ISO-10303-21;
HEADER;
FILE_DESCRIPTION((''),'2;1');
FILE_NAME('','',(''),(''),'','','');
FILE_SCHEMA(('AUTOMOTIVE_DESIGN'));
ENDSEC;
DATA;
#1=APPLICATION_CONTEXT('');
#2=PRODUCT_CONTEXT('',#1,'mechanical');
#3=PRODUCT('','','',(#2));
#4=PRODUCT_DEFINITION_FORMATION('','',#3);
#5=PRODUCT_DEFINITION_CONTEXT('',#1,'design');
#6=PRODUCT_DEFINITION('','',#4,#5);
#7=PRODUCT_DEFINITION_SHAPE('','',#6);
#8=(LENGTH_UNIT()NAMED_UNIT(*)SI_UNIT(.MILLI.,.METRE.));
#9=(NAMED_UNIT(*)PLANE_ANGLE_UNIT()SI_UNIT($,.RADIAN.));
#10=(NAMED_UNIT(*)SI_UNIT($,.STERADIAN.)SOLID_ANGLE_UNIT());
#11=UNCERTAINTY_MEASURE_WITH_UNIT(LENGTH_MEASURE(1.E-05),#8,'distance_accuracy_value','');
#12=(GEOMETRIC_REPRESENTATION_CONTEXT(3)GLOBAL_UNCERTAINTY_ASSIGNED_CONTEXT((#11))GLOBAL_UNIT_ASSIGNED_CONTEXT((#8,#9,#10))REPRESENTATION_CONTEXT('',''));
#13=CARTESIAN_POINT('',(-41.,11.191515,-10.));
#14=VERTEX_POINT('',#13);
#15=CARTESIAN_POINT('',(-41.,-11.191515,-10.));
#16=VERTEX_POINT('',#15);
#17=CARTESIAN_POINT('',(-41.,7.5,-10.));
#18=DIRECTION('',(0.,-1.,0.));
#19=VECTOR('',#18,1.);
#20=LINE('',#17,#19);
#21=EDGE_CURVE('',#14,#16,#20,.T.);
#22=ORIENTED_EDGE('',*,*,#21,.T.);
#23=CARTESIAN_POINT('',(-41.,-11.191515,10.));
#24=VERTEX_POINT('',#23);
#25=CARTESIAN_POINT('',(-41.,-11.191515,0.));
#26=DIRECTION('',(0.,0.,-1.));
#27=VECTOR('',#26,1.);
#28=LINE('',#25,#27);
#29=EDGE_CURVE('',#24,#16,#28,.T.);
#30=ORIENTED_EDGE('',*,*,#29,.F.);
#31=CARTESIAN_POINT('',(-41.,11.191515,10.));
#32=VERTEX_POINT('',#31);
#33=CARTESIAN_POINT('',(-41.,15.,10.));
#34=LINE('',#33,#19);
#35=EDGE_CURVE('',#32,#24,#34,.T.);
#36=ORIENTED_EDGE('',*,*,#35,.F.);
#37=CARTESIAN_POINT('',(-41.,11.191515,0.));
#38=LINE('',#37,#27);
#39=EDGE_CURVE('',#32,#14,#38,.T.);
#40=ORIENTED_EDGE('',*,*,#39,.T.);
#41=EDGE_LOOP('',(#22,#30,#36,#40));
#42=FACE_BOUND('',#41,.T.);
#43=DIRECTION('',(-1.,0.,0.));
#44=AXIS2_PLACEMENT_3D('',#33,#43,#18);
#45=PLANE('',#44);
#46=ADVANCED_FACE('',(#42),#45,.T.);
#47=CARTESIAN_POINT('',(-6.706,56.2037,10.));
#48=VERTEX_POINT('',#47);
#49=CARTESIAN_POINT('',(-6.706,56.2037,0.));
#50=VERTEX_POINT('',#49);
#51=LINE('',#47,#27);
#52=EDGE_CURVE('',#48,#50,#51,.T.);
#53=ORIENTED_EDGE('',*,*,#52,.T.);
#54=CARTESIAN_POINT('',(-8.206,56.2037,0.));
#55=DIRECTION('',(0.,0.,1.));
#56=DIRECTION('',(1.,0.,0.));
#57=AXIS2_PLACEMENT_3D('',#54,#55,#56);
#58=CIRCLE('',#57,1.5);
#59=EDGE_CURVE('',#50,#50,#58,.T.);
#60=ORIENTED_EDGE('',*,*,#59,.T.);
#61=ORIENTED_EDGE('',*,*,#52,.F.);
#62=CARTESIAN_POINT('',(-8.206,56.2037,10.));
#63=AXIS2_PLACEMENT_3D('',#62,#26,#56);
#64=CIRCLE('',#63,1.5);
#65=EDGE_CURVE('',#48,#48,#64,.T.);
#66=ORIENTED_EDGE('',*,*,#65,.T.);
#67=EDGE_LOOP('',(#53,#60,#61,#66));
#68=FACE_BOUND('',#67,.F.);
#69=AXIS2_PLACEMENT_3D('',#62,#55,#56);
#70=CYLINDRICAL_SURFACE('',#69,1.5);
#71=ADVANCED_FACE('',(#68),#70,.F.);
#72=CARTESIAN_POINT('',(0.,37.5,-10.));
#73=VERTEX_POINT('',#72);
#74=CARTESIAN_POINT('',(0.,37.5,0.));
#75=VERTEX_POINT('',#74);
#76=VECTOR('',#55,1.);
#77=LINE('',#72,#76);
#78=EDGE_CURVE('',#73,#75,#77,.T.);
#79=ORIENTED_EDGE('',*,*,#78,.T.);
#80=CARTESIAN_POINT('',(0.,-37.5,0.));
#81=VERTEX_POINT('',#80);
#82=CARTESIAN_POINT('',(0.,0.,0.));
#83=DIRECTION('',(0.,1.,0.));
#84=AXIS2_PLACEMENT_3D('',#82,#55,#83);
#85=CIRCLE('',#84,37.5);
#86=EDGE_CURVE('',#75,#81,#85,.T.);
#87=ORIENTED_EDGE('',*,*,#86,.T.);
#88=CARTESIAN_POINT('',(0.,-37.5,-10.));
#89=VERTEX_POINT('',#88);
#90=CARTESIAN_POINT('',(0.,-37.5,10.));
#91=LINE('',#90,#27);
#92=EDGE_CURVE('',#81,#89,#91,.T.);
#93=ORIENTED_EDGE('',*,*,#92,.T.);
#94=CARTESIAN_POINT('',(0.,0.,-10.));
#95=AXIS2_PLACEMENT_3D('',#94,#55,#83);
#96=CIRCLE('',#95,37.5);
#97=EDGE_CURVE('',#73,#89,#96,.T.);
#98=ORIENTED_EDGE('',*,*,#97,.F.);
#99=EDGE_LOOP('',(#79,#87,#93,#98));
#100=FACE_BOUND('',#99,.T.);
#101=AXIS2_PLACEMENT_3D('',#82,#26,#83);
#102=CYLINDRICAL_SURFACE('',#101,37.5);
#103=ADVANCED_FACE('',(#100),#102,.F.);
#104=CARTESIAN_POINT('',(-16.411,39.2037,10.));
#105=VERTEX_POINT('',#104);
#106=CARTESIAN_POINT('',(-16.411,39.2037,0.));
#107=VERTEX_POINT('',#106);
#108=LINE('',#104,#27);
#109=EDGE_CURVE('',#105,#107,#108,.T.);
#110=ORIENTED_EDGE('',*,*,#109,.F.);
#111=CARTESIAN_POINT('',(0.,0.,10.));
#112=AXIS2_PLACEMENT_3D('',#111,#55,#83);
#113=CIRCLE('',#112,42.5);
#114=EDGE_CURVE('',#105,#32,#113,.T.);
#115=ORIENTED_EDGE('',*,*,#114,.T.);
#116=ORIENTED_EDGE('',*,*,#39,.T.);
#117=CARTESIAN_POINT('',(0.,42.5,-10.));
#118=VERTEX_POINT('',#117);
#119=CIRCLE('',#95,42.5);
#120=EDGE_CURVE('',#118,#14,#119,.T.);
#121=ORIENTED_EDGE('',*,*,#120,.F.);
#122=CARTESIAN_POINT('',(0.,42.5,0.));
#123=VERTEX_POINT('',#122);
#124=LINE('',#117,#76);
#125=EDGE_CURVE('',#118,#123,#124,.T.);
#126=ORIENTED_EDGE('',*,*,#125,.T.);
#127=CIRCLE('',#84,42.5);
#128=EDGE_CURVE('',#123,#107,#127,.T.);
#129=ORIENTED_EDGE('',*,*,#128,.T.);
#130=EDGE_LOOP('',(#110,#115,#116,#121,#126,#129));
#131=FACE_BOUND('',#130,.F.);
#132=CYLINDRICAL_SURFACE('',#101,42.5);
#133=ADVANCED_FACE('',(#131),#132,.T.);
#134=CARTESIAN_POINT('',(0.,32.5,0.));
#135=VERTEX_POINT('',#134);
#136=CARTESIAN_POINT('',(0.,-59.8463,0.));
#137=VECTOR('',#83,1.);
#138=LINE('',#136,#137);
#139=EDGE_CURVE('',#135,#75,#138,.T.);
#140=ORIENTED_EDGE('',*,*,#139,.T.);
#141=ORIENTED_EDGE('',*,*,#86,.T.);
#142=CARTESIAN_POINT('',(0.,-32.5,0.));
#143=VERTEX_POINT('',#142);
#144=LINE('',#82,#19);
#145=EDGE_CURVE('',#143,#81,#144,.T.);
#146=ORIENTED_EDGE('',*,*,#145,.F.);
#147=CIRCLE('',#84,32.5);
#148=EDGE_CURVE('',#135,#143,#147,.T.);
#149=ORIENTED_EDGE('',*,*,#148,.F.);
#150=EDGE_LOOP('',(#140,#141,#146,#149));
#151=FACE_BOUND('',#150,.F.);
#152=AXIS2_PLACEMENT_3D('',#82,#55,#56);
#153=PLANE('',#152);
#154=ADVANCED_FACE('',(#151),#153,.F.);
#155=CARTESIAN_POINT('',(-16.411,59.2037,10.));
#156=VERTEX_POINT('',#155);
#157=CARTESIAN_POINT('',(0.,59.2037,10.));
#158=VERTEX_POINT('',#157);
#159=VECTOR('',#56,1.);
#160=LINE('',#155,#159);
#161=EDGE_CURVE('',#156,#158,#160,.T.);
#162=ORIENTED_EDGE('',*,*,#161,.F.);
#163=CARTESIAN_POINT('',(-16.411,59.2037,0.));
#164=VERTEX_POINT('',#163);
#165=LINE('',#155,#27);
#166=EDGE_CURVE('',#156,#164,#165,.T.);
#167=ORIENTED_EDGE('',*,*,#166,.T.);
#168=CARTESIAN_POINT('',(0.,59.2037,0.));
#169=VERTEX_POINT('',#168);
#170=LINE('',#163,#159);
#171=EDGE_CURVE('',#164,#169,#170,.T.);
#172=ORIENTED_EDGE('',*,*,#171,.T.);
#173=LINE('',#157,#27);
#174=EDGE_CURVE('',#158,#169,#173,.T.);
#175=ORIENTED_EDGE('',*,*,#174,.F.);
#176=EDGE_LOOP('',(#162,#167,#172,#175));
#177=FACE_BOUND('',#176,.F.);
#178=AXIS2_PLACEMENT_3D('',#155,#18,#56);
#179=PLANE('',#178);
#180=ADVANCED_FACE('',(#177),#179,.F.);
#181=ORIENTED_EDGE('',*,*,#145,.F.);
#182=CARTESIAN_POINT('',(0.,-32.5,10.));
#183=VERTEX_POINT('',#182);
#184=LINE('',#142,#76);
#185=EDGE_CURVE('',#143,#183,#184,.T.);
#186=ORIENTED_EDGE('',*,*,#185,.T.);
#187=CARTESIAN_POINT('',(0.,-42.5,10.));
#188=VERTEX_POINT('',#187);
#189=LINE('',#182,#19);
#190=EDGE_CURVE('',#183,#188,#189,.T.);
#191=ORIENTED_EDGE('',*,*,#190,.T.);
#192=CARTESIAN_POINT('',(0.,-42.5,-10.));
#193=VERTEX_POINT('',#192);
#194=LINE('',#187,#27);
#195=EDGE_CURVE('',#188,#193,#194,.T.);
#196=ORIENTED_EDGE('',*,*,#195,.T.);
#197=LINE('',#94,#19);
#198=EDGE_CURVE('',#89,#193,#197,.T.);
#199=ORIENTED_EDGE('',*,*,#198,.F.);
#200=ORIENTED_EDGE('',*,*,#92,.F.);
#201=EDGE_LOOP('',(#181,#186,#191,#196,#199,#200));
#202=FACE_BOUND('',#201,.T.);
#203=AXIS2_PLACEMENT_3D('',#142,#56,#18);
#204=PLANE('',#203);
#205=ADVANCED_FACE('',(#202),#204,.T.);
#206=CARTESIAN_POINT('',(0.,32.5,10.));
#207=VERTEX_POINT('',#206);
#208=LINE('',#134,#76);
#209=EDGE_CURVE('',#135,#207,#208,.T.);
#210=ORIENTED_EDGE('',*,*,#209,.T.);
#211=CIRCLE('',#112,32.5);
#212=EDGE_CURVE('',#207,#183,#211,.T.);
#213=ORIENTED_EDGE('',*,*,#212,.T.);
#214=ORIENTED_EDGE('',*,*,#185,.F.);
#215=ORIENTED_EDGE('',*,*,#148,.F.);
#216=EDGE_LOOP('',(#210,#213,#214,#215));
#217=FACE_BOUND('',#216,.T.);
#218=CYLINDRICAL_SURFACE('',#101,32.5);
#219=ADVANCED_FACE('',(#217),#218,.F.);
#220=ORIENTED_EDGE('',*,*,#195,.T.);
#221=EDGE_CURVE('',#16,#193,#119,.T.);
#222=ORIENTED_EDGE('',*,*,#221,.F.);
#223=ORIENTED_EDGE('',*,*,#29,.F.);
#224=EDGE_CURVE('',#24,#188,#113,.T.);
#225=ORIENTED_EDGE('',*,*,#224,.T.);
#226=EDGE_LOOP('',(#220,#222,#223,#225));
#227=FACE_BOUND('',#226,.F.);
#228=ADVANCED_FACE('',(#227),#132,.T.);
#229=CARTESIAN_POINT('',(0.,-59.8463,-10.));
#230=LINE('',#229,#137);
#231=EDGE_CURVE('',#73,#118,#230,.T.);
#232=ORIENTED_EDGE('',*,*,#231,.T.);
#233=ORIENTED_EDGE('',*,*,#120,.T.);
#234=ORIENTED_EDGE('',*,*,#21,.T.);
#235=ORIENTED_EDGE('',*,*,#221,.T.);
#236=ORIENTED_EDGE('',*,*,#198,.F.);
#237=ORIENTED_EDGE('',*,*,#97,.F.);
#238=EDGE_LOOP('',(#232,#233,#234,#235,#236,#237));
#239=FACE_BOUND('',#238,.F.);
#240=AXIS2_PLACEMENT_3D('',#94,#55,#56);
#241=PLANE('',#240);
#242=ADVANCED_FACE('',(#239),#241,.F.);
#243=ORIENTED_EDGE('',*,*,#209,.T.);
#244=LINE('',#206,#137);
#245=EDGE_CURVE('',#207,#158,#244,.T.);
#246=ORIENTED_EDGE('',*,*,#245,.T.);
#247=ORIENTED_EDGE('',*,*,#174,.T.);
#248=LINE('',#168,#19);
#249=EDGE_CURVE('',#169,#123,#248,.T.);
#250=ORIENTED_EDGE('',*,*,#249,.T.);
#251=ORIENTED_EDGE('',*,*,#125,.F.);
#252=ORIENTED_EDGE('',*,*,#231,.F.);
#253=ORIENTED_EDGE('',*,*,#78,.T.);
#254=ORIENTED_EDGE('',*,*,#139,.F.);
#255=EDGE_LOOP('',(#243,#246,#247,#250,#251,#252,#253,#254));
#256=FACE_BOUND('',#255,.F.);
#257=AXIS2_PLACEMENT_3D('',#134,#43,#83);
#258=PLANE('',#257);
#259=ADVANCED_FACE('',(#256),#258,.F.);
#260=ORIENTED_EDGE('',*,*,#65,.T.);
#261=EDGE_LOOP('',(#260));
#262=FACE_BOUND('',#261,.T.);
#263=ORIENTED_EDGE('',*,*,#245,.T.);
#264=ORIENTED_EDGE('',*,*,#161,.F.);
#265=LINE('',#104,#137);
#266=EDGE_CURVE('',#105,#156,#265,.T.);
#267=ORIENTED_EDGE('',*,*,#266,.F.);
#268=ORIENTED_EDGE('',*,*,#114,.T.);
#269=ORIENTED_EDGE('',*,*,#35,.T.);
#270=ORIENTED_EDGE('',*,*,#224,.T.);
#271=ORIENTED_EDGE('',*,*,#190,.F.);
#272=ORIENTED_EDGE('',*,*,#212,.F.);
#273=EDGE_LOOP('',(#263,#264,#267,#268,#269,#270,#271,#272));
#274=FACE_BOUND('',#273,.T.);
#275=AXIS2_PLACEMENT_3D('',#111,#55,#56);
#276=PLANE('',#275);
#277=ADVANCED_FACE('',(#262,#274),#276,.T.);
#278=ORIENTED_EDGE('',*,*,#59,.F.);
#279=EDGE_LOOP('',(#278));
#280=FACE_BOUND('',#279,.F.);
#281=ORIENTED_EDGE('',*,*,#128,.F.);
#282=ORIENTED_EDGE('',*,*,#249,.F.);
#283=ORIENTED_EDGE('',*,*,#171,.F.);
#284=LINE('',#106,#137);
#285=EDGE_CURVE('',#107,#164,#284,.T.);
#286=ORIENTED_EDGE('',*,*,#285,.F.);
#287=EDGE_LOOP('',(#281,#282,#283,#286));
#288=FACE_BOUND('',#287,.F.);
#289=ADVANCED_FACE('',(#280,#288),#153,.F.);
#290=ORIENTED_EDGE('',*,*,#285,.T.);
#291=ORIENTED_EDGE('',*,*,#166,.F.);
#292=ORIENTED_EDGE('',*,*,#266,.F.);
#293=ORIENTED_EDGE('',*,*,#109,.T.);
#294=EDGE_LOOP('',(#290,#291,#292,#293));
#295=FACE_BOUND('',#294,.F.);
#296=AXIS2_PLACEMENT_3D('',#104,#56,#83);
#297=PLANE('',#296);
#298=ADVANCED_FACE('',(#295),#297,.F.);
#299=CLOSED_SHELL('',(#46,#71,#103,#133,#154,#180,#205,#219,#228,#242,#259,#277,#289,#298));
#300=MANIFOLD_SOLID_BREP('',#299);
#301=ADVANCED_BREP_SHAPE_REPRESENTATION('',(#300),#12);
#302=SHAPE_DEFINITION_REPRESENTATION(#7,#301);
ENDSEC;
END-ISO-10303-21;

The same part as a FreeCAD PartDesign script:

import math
import FreeCAD as App
import Part
import Sketcher
from FreeCAD import Vector


def add_polygon(sketch, points):
    """Adds a closed chain of lines whose ends are joined by coincident constraints."""
    first, n = sketch.GeometryCount, len(points)
    for a, b in zip(points, points[1:] + points[:1]):
        sketch.addGeometry(Part.LineSegment(App.Vector(*a, 0), App.Vector(*b, 0)), False)
    for i in range(n):
        sketch.addConstraint(Sketcher.Constraint("Coincident", first + i, 2, first + (i + 1) % n, 1))

doc = App.newDocument("Part")
body = doc.addObject("PartDesign::Body", "Body")

sketch1 = doc.addObject("Sketcher::SketchObject", "Sketch")
body.addObject(sketch1)
sketch1.AttachmentSupport = (doc.XY_Plane, [""])
sketch1.MapMode = "FlatFace"
sketch1.addGeometry([
    Part.ArcOfCircle(Part.Circle(Vector(0, 0, 0), Vector(0, 0, 1), 32), math.radians(90), math.radians(270)),
    Part.LineSegment(Vector(0, 32, 0), Vector(0, 38, 0)),
    Part.ArcOfCircle(Part.Circle(Vector(0, 0, 0), Vector(0, 0, 1), 38), math.radians(90), math.radians(270)),
    Part.LineSegment(Vector(0, -38, 0), Vector(0, -32, 0)),
], False)
sketch1.addConstraint([
    Sketcher.Constraint("Coincident", 0, 1, 1, 1),
    Sketcher.Constraint("Coincident", 1, 2, 2, 1),
    Sketcher.Constraint("Coincident", 2, 2, 3, 1),
    Sketcher.Constraint("Coincident", 3, 2, 0, 2),
    Sketcher.Constraint("Vertical", 1),
    Sketcher.Constraint("Vertical", 3),
    Sketcher.Constraint("Coincident", 0, 3, -1, 1),
    Sketcher.Constraint("Coincident", 2, 3, -1, 1),
    Sketcher.Constraint("PointOnObject", 0, 1, -2),
    Sketcher.Constraint("PointOnObject", 2, 2, -2),
    Sketcher.Constraint("Radius", 0, 32.5),
    Sketcher.Constraint("Radius", 2, 37.5),
])
pad1 = doc.addObject("PartDesign::Pad", "Pad")
body.addObject(pad1)
pad1.Profile = sketch1
pad1.Length = 10

sketch2 = doc.addObject("Sketcher::SketchObject", "Sketch001")
body.addObject(sketch2)
sketch2.AttachmentSupport = (doc.XY_Plane, [""])
sketch2.MapMode = "FlatFace"
sketch2.addGeometry([
    Part.ArcOfCircle(Part.Circle(Vector(0, 0, 0), Vector(0, 0, 1), 38), math.radians(90), math.radians(270)),
    Part.LineSegment(Vector(0, 38, 0), Vector(0, 42, 0)),
    Part.ArcOfCircle(Part.Circle(Vector(0, 0, 0), Vector(0, 0, 1), 42), math.radians(90), math.radians(270)),
    Part.LineSegment(Vector(0, -42, 0), Vector(0, -38, 0)),
], False)
sketch2.addConstraint([
    Sketcher.Constraint("Coincident", 0, 1, 1, 1),
    Sketcher.Constraint("Coincident", 1, 2, 2, 1),
    Sketcher.Constraint("Coincident", 2, 2, 3, 1),
    Sketcher.Constraint("Coincident", 3, 2, 0, 2),
    Sketcher.Constraint("Vertical", 1),
    Sketcher.Constraint("Vertical", 3),
    Sketcher.Constraint("Coincident", 0, 3, -1, 1),
    Sketcher.Constraint("Coincident", 2, 3, -1, 1),
    Sketcher.Constraint("PointOnObject", 0, 1, -2),
    Sketcher.Constraint("PointOnObject", 2, 2, -2),
    Sketcher.Constraint("Radius", 0, 37.5),
    Sketcher.Constraint("Radius", 2, 42.5),
])
pad2 = doc.addObject("PartDesign::Pad", "Pad001")
body.addObject(pad2)
pad2.Profile = sketch2
pad2.Length = 20
pad2.Midplane = True

sketch3 = doc.addObject("Sketcher::SketchObject", "Sketch002")
body.addObject(sketch3)
sketch3.AttachmentSupport = (doc.XY_Plane, [""])
sketch3.MapMode = "FlatFace"
sketch3.AttachmentOffset = App.Placement(Vector(0, 0, 10), App.Rotation())
sketch3.addGeometry([
    Part.ArcOfCircle(Part.Circle(Vector(0, 0, 0), Vector(0, 0, 1), 42), math.radians(90), math.radians(113)),
    Part.LineSegment(Vector(0, 42, 0), Vector(0, 59, 0)),
    Part.LineSegment(Vector(0, 59, 0), Vector(-16, 59, 0)),
    Part.LineSegment(Vector(-16, 59, 0), Vector(-16, 39, 0)),
], False)
sketch3.addConstraint([
    Sketcher.Constraint("Coincident", 0, 1, 1, 1),
    Sketcher.Constraint("Coincident", 1, 2, 2, 1),
    Sketcher.Constraint("Coincident", 2, 2, 3, 1),
    Sketcher.Constraint("Coincident", 3, 2, 0, 2),
    Sketcher.Constraint("Vertical", 1),
    Sketcher.Constraint("Horizontal", 2),
    Sketcher.Constraint("Vertical", 3),
    Sketcher.Constraint("Coincident", 0, 3, -1, 1),
    Sketcher.Constraint("PointOnObject", 0, 1, -2),
    Sketcher.Constraint("DistanceY", 3, 2, 3, 1, 20.0),
    Sketcher.Constraint("Radius", 0, 42.5),
    Sketcher.Constraint("DistanceX", 2, 2, 2, 1, 16.411),
])
pad3 = doc.addObject("PartDesign::Pad", "Pad002")
body.addObject(pad3)
pad3.Profile = sketch3
pad3.Length = 10
pad3.Reversed = True

sketch4 = doc.addObject("Sketcher::SketchObject", "Sketch003")
body.addObject(sketch4)
sketch4.AttachmentSupport = (doc.XY_Plane, [""])
sketch4.MapMode = "FlatFace"
sketch4.AttachmentOffset = App.Placement(Vector(0, 0, 10), App.Rotation())
sketch4.addGeometry(Part.Circle(Vector(-8.2, 56.2, 0), Vector(0, 0, 1), 1.5), False)
sketch4.addConstraint([
    Sketcher.Constraint("Diameter", 0, 3.0),
    Sketcher.Constraint("DistanceX", 0, 3, -1, 1, 8.206),
    Sketcher.Constraint("DistanceY", -1, 1, 0, 3, 56.2037),
])
pocket1 = doc.addObject("PartDesign::Pocket", "Pocket")
body.addObject(pocket1)
pocket1.Profile = sketch4
pocket1.Length = 20

sketch5 = doc.addObject("Sketcher::SketchObject", "Sketch004")
body.addObject(sketch5)
sketch5.AttachmentSupport = (doc.XY_Plane, [""])
sketch5.MapMode = "FlatFace"
sketch5.AttachmentOffset = App.Placement(Vector(0, 0, 10), App.Rotation())
add_polygon(sketch5, [(-41, 15), (-45.3, 15), (-45.3, -15), (-41, -15)])
sketch5.addConstraint([
    Sketcher.Constraint("Horizontal", 0),
    Sketcher.Constraint("Vertical", 1),
    Sketcher.Constraint("Horizontal", 2),
    Sketcher.Constraint("Vertical", 3),
    Sketcher.Constraint("DistanceY", -1, 1, 0, 2, 15.0),
    Sketcher.Constraint("DistanceY", 1, 2, -1, 1, 15.0),
    Sketcher.Constraint("DistanceX", 2, 2, -1, 1, 41.0),
    Sketcher.Constraint("DistanceX", 0, 2, 0, 1, 4.2874),
])
pocket2 = doc.addObject("PartDesign::Pocket", "Pocket001")
body.addObject(pocket2)
pocket2.Profile = sketch5
pocket2.Length = 28

doc.recompute()
